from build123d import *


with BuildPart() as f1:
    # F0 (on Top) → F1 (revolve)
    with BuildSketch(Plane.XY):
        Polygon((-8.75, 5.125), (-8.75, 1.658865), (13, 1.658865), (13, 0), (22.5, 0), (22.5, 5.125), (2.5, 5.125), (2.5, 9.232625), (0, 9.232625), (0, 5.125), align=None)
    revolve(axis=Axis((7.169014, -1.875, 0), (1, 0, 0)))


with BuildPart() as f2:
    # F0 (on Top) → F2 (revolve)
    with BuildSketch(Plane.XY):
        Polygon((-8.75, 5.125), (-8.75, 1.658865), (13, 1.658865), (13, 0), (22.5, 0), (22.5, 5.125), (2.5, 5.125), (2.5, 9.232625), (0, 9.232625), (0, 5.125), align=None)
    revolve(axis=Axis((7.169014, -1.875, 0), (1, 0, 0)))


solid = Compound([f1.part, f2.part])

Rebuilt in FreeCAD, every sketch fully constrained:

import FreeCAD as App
import Part
import Sketcher
from FreeCAD import Vector
Q = App.Units.Quantity

doc = App.newDocument("Part")
body = doc.addObject("PartDesign::Body", "Body")

# Sketch on XY plane
sketch1 = body.newObject("Sketcher::SketchObject", "Sketch")
sketch1.AttachmentSupport = (doc.getObject("XY_Plane"), [""])
sketch1.MapMode = "FlatFace"
sketch1.addGeometry([
    Part.LineSegment(Vector(-8.8, 5.1, 0), Vector(-8.8, 1.7, 0)),  # 0
    Part.LineSegment(Vector(-8.8, 1.7, 0), Vector(13, 1.7, 0)),  # 1
    Part.LineSegment(Vector(13, 1.7, 0), Vector(13, 0, 0)),  # 2
    Part.LineSegment(Vector(13, 0, 0), Vector(22.5, 0, 0)),  # 3
    Part.LineSegment(Vector(22.5, 0, 0), Vector(22.5, 5.1, 0)),  # 4
    Part.LineSegment(Vector(22.5, 5.1, 0), Vector(2.5, 5.1, 0)),  # 5
    Part.LineSegment(Vector(2.5, 5.1, 0), Vector(2.5, 9.2, 0)),  # 6
    Part.LineSegment(Vector(2.5, 9.2, 0), Vector(0, 9.2, 0)),  # 7
    Part.LineSegment(Vector(0, 9.2, 0), Vector(0, 5.1, 0)),  # 8
    Part.LineSegment(Vector(0, 5.1, 0), Vector(-8.8, 5.1, 0)),  # 9
], False)
sketch1.addGeometry(Part.LineSegment(Vector(-8.8, -1.9, 0), Vector(22.5, -1.9, 0)), True)  # axis
sketch1.addConstraint([
    Sketcher.Constraint("Coincident", 0, 2, 1, 1),
    Sketcher.Constraint("Coincident", 1, 2, 2, 1),
    Sketcher.Constraint("Coincident", 2, 2, 3, 1),
    Sketcher.Constraint("Coincident", 3, 2, 4, 1),
    Sketcher.Constraint("Coincident", 4, 2, 5, 1),
    Sketcher.Constraint("Coincident", 5, 2, 6, 1),
    Sketcher.Constraint("Coincident", 6, 2, 7, 1),
    Sketcher.Constraint("Coincident", 7, 2, 8, 1),
    Sketcher.Constraint("Coincident", 8, 2, 9, 1),
    Sketcher.Constraint("Coincident", 9, 2, 0, 1),
    Sketcher.Constraint("Vertical", 0),
    Sketcher.Constraint("Horizontal", 1),
    Sketcher.Constraint("Vertical", 2),
    Sketcher.Constraint("Horizontal", 3),
    Sketcher.Constraint("Vertical", 4),
    Sketcher.Constraint("Horizontal", 5),
    Sketcher.Constraint("Vertical", 6),
    Sketcher.Constraint("Horizontal", 7),
    Sketcher.Constraint("Vertical", 8),
    Sketcher.Constraint("Horizontal", 9),
    Sketcher.Constraint("Horizontal", 10),
    Sketcher.Constraint("PointOnObject", 2, 2, -1),
    Sketcher.Constraint("PointOnObject", 7, 2, -2),
    Sketcher.Constraint("Horizontal", 5, 2, 8, 2),
    Sketcher.Constraint("Vertical", 9, 2, 10, 1),
    Sketcher.Constraint("Vertical", 4, 2, 10, 2),
    Sketcher.Constraint("DistanceX", 5, 2, 5, 1, Q("20 mm")),
    Sketcher.Constraint("DistanceX", 3, 1, 3, 2, Q("9.5 mm")),
    Sketcher.Constraint("DistanceX", 7, 2, 7, 1, Q("2.5 mm")),
    Sketcher.Constraint("DistanceY", 10, 1, 9, 2, Q("7 mm")),
    Sketcher.Constraint("DistanceX", 1, 1, 1, 2, Q("21.75 mm")),
    Sketcher.Constraint("DistanceY", 4, 1, 4, 2, Q("5.125 mm")),
    Sketcher.Constraint("DistanceY", 0, 2, 0, 1, Q("3.466135 mm")),
    Sketcher.Constraint("DistanceY", 6, 1, 6, 2, Q("4.107625 mm")),
])
revolution = body.newObject("PartDesign::Revolution", "Revolution")
revolution.Profile = sketch1
revolution.ReferenceAxis = (sketch1, ["Axis0"])
revolution.Angle = 360
body2 = doc.addObject("PartDesign::Body", "Body001")

# Sketch on XY plane
sketch2 = body2.newObject("Sketcher::SketchObject", "Sketch001")
sketch2.AttachmentSupport = (doc.getObject("XY_Plane001"), [""])
sketch2.MapMode = "FlatFace"
sketch2.addGeometry([
    Part.LineSegment(Vector(-8.8, 5.1, 0), Vector(-8.8, 1.7, 0)),  # 0
    Part.LineSegment(Vector(-8.8, 1.7, 0), Vector(13, 1.7, 0)),  # 1
    Part.LineSegment(Vector(13, 1.7, 0), Vector(13, 0, 0)),  # 2
    Part.LineSegment(Vector(13, 0, 0), Vector(22.5, 0, 0)),  # 3
    Part.LineSegment(Vector(22.5, 0, 0), Vector(22.5, 5.1, 0)),  # 4
    Part.LineSegment(Vector(22.5, 5.1, 0), Vector(2.5, 5.1, 0)),  # 5
    Part.LineSegment(Vector(2.5, 5.1, 0), Vector(2.5, 9.2, 0)),  # 6
    Part.LineSegment(Vector(2.5, 9.2, 0), Vector(0, 9.2, 0)),  # 7
    Part.LineSegment(Vector(0, 9.2, 0), Vector(0, 5.1, 0)),  # 8
    Part.LineSegment(Vector(0, 5.1, 0), Vector(-8.8, 5.1, 0)),  # 9
], False)
sketch2.addGeometry(Part.LineSegment(Vector(-8.8, -1.9, 0), Vector(22.5, -1.9, 0)), True)  # axis
sketch2.addConstraint([
    Sketcher.Constraint("Coincident", 0, 2, 1, 1),
    Sketcher.Constraint("Coincident", 1, 2, 2, 1),
    Sketcher.Constraint("Coincident", 2, 2, 3, 1),
    Sketcher.Constraint("Coincident", 3, 2, 4, 1),
    Sketcher.Constraint("Coincident", 4, 2, 5, 1),
    Sketcher.Constraint("Coincident", 5, 2, 6, 1),
    Sketcher.Constraint("Coincident", 6, 2, 7, 1),
    Sketcher.Constraint("Coincident", 7, 2, 8, 1),
    Sketcher.Constraint("Coincident", 8, 2, 9, 1),
    Sketcher.Constraint("Coincident", 9, 2, 0, 1),
    Sketcher.Constraint("Vertical", 0),
    Sketcher.Constraint("Horizontal", 1),
    Sketcher.Constraint("Vertical", 2),
    Sketcher.Constraint("Horizontal", 3),
    Sketcher.Constraint("Vertical", 4),
    Sketcher.Constraint("Horizontal", 5),
    Sketcher.Constraint("Vertical", 6),
    Sketcher.Constraint("Horizontal", 7),
    Sketcher.Constraint("Vertical", 8),
    Sketcher.Constraint("Horizontal", 9),
    Sketcher.Constraint("Horizontal", 10),
    Sketcher.Constraint("PointOnObject", 2, 2, -1),
    Sketcher.Constraint("PointOnObject", 7, 2, -2),
    Sketcher.Constraint("Horizontal", 5, 2, 8, 2),
    Sketcher.Constraint("Vertical", 9, 2, 10, 1),
    Sketcher.Constraint("Vertical", 4, 2, 10, 2),
    Sketcher.Constraint("DistanceX", 5, 2, 5, 1, Q("20 mm")),
    Sketcher.Constraint("DistanceX", 3, 1, 3, 2, Q("9.5 mm")),
    Sketcher.Constraint("DistanceX", 7, 2, 7, 1, Q("2.5 mm")),
    Sketcher.Constraint("DistanceY", 10, 1, 9, 2, Q("7 mm")),
    Sketcher.Constraint("DistanceX", 1, 1, 1, 2, Q("21.75 mm")),
    Sketcher.Constraint("DistanceY", 4, 1, 4, 2, Q("5.125 mm")),
    Sketcher.Constraint("DistanceY", 0, 2, 0, 1, Q("3.466135 mm")),
    Sketcher.Constraint("DistanceY", 6, 1, 6, 2, Q("4.107625 mm")),
])
revolution2 = body2.newObject("PartDesign::Revolution", "Revolution001")
revolution2.Profile = sketch2
revolution2.ReferenceAxis = (sketch2, ["Axis0"])
revolution2.Angle = 360

doc.recompute()
